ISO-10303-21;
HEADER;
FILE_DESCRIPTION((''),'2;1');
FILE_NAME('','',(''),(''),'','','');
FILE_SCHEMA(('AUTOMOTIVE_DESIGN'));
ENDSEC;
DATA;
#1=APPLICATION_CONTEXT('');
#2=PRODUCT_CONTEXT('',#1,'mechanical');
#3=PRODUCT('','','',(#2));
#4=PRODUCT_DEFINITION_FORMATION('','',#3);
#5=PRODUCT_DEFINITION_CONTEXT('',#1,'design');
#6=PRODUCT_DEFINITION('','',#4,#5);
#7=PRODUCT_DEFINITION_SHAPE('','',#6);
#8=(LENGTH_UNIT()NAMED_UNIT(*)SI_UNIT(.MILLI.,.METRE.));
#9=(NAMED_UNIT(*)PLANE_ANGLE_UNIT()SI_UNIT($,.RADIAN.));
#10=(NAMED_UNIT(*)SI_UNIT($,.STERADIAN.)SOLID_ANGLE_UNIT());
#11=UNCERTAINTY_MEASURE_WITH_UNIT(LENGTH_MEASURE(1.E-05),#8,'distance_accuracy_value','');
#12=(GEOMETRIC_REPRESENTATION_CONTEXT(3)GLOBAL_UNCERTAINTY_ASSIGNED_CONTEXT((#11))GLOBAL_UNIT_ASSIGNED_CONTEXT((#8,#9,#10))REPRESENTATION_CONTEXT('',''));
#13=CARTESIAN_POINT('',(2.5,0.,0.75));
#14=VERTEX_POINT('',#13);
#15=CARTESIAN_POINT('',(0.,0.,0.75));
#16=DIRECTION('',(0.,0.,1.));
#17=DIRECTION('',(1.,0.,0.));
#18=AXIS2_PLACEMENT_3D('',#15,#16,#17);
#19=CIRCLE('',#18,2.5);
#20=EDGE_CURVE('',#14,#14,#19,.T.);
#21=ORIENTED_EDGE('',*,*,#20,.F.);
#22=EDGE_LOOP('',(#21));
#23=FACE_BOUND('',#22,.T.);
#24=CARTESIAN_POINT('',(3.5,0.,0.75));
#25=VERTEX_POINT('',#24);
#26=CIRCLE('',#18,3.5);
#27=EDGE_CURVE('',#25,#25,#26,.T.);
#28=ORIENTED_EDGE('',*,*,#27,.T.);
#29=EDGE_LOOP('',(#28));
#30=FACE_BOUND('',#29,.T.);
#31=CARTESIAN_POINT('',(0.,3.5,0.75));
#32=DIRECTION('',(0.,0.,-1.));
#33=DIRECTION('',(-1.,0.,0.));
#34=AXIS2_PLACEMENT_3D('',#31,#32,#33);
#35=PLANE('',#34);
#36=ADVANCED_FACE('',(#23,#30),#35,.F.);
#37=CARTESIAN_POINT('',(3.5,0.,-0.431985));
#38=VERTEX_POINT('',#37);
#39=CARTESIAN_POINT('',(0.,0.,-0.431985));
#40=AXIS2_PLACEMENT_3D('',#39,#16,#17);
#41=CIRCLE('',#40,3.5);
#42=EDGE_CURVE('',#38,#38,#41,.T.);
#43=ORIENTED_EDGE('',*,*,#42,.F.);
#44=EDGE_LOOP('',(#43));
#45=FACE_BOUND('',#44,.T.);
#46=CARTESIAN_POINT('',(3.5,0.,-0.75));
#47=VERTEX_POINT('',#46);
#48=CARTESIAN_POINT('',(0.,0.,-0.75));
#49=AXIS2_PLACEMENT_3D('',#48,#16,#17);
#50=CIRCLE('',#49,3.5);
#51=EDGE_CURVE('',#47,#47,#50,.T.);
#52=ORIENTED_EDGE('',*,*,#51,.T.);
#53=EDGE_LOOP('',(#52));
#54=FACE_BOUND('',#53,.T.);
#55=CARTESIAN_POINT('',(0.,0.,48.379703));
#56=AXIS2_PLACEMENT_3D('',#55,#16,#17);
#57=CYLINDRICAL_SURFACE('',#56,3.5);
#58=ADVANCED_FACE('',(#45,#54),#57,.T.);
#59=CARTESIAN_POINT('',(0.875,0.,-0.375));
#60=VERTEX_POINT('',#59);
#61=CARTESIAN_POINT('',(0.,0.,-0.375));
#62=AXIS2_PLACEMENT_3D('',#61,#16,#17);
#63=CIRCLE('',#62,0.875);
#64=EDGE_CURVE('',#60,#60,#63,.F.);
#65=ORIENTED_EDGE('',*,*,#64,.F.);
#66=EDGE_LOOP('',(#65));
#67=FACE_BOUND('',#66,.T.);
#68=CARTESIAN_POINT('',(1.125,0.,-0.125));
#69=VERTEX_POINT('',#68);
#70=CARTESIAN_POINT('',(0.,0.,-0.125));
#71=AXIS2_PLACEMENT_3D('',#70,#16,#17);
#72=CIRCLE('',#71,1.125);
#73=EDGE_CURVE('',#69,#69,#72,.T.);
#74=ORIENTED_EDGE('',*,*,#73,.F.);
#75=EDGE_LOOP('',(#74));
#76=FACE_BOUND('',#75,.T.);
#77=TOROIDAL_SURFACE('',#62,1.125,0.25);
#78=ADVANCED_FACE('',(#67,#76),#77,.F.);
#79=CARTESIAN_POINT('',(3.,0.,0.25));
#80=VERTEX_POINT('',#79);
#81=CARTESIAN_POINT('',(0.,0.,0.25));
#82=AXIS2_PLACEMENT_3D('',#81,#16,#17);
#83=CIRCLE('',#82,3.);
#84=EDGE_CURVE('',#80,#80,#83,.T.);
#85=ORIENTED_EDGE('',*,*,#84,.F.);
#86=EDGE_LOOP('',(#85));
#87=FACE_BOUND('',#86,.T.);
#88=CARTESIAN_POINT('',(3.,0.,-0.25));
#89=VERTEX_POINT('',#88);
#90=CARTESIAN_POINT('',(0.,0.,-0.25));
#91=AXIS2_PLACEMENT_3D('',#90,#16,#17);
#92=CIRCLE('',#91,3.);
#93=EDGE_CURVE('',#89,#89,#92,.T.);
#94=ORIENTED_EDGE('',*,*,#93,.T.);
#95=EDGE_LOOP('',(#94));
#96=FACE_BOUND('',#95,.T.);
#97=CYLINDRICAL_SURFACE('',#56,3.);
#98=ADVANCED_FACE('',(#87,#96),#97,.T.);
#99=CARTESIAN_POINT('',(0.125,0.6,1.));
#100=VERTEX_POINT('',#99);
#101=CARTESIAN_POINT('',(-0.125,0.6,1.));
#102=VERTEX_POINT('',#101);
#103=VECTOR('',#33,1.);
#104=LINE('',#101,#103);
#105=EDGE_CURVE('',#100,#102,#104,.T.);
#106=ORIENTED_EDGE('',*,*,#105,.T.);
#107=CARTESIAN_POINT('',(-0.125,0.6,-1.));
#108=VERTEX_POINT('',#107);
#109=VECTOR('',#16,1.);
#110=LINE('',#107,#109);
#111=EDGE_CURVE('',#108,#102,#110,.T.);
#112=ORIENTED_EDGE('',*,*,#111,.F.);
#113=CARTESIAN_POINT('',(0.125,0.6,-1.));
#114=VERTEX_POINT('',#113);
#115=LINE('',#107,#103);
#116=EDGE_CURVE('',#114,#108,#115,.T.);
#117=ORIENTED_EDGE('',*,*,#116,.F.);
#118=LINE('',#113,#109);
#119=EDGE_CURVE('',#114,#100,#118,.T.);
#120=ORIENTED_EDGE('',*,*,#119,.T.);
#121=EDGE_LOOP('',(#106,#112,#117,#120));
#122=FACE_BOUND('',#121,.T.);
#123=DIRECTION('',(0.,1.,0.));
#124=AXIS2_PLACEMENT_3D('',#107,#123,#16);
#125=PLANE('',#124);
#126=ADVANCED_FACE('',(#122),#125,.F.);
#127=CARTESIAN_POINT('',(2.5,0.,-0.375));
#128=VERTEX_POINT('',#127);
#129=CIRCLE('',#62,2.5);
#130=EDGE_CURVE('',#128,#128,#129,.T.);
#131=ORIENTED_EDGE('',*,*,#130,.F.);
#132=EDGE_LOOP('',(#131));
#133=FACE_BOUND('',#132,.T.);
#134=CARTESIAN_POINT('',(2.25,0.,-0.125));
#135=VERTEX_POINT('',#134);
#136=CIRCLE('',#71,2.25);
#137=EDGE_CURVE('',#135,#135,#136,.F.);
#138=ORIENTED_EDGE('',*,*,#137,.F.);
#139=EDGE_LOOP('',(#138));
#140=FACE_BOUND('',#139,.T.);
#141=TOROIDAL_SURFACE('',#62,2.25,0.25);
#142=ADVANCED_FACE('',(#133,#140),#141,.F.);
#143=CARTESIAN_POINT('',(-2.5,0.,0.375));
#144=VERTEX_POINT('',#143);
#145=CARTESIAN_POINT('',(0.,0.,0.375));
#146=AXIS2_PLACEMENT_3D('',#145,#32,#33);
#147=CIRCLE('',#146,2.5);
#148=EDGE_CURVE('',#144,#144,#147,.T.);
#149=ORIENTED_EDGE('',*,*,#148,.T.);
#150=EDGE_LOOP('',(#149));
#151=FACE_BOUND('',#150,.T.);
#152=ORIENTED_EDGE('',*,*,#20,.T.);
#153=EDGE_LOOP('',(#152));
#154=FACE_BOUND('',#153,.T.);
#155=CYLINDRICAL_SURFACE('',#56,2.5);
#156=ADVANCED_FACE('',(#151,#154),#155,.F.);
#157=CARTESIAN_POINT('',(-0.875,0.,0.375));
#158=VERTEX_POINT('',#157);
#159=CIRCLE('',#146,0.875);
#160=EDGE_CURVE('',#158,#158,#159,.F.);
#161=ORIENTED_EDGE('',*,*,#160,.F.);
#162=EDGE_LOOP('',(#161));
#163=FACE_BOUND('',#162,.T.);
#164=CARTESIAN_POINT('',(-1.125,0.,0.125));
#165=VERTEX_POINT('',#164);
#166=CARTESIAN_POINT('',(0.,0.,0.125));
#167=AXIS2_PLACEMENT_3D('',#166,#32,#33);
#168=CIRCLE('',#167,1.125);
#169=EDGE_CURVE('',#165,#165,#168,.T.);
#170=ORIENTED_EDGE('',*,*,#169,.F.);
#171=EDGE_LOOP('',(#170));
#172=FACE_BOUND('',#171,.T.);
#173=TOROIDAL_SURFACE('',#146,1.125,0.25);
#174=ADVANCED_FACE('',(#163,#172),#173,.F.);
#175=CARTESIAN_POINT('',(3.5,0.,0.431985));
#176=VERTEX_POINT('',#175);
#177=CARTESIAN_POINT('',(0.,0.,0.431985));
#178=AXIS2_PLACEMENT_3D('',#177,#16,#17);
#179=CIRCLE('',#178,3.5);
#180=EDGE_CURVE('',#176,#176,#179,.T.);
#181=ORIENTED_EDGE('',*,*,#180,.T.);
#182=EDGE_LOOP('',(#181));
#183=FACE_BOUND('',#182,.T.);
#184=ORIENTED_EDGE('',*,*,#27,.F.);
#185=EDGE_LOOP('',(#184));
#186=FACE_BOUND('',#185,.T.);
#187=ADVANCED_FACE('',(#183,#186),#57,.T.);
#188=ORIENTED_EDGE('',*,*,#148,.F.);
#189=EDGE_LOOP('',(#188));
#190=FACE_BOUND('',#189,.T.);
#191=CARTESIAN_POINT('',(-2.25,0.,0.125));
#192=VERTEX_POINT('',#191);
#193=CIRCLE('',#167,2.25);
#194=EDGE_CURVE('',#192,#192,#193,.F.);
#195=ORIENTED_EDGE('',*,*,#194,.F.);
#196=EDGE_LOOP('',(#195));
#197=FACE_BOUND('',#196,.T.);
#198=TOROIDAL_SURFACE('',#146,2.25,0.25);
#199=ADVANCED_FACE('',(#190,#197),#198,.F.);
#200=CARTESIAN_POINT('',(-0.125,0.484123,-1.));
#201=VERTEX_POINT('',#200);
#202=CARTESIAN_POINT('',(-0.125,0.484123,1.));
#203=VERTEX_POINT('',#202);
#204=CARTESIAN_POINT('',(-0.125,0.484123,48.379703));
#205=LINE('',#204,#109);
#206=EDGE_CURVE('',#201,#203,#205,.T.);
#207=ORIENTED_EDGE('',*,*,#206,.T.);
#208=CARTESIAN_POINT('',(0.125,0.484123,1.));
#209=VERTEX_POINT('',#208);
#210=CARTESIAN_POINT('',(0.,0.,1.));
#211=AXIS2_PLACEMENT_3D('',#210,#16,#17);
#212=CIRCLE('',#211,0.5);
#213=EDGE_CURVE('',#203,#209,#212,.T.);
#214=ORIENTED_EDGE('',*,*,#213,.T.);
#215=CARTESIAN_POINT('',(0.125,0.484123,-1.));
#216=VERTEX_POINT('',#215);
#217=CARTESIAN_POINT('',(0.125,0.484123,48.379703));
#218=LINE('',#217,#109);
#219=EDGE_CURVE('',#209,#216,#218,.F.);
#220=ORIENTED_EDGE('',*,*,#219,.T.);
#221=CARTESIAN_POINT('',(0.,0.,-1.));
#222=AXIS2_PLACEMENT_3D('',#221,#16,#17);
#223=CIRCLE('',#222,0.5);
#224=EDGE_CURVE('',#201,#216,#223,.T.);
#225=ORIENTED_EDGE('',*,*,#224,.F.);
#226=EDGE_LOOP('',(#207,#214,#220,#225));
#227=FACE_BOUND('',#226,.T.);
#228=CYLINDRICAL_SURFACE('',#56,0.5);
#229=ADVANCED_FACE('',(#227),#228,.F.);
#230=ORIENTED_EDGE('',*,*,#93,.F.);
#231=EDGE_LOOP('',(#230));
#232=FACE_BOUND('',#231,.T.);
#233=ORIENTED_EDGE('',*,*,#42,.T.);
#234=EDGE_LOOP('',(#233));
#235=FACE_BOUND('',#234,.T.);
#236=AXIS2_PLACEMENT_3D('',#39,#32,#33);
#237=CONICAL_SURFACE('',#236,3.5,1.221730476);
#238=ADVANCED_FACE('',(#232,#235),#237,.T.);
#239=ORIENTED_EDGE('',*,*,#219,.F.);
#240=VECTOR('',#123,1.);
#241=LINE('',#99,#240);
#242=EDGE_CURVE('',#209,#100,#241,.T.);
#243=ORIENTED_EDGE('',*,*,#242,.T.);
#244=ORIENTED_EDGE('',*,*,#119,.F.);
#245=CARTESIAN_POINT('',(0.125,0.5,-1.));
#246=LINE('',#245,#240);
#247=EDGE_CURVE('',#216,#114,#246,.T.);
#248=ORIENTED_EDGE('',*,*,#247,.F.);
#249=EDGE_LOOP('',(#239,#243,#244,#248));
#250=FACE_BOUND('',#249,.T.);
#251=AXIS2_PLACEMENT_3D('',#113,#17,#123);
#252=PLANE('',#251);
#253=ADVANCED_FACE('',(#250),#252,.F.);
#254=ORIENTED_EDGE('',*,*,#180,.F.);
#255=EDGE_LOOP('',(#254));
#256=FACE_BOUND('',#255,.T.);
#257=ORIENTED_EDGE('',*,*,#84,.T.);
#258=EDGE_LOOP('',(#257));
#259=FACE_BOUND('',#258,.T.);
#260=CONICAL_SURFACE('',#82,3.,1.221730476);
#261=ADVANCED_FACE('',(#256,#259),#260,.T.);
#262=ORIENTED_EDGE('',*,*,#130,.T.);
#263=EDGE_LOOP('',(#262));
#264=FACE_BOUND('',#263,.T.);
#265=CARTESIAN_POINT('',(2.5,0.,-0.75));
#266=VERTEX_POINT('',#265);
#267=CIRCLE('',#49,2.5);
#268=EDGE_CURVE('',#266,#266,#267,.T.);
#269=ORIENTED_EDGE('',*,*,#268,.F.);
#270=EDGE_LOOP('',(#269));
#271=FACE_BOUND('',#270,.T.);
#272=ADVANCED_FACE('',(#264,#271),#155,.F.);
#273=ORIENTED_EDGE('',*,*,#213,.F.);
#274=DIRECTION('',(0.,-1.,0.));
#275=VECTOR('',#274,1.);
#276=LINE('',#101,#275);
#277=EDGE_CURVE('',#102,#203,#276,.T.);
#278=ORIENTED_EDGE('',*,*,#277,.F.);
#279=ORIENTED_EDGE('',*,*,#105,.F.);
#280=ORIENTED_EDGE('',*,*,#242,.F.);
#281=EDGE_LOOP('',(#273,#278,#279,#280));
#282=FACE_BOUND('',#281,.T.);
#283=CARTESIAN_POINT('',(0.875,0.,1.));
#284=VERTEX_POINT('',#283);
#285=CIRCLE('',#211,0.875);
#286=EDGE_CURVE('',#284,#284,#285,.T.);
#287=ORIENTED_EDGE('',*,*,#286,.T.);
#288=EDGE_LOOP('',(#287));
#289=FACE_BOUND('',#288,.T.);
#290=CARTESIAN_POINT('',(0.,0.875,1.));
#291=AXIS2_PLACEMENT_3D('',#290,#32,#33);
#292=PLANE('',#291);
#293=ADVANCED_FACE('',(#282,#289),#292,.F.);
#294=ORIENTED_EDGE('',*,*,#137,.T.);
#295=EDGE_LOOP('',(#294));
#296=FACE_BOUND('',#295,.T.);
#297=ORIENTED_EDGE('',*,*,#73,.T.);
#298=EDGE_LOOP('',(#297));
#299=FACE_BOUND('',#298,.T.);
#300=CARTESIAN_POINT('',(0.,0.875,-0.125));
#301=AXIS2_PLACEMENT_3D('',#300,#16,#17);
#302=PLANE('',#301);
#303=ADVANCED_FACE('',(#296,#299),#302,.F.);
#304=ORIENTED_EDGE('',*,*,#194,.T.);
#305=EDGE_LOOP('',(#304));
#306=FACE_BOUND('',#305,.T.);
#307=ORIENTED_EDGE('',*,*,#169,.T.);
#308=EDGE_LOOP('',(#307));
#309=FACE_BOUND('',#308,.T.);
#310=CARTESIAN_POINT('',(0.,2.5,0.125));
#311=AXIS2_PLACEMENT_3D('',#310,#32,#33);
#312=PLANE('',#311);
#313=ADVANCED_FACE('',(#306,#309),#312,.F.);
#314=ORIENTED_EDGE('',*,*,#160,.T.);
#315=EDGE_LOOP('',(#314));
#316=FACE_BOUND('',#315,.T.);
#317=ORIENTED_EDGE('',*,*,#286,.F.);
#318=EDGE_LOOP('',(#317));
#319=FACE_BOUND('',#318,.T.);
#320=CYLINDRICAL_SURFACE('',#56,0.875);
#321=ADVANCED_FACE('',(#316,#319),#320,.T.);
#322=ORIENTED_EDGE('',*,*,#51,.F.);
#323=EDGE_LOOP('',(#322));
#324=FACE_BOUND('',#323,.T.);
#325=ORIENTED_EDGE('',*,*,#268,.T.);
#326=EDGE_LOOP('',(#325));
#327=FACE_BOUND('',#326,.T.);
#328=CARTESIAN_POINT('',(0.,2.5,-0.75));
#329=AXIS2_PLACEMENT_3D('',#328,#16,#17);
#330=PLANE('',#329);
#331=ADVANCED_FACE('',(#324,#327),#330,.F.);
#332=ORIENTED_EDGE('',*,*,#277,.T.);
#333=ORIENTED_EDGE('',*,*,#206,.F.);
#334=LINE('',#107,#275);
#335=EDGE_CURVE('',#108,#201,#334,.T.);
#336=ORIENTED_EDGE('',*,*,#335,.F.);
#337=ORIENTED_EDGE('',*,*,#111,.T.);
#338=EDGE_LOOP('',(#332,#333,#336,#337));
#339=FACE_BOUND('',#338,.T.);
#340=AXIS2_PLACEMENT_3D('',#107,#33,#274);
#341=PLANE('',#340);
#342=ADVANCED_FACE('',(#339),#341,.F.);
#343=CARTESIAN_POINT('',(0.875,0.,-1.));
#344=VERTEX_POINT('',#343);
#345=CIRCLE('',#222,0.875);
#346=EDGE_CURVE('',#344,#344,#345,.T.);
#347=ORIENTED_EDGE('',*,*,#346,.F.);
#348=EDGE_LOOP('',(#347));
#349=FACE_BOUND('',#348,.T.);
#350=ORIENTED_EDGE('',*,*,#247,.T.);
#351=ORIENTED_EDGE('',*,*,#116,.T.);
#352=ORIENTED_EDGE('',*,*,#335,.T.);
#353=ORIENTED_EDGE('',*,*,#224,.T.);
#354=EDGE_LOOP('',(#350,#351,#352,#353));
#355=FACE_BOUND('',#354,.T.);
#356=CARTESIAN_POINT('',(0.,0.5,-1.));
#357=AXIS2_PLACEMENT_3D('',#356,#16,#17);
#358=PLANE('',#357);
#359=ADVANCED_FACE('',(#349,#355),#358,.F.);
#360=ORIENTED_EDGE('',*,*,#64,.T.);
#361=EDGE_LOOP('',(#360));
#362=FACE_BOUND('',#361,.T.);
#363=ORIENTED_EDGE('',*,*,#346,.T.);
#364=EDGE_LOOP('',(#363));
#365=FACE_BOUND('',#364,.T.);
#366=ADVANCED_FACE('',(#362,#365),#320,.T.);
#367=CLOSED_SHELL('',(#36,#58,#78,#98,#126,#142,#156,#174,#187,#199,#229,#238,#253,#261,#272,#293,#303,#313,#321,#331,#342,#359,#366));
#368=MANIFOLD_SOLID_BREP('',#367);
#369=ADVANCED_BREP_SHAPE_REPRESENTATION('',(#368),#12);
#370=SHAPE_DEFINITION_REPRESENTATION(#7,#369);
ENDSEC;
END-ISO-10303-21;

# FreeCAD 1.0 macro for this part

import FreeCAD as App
import Part
import Sketcher
from FreeCAD import Vector
Q = App.Units.Quantity


def edges_at(feature, points):
    """Names of the edges that pass closest to the given points."""
    edges = feature.Shape.Edges
    near = lambda p: min(range(len(edges)), key=lambda i: edges[i].distToShape(Part.Vertex(*p))[0])
    return sorted({f"Edge{near(p) + 1}" for p in points})

doc = App.newDocument("Part")
body = doc.addObject("PartDesign::Body", "Body")

# Sketch on YZ plane
sketch1 = doc.addObject("Sketcher::SketchObject", "Sketch")
body.addObject(sketch1)
sketch1.AttachmentSupport = (doc.YZ_Plane, [""])
sketch1.MapMode = "FlatFace"
sketch1.addGeometry([
    Part.LineSegment(Vector(0.5, 1, 0), Vector(0.5, -1, 0)),  # 0
    Part.LineSegment(Vector(0.5, -1, 0), Vector(0.875, -1, 0)),  # 1
    Part.LineSegment(Vector(0.875, -1, 0), Vector(0.875, -0.125, 0)),  # 2
    Part.LineSegment(Vector(0.875, -0.125, 0), Vector(2.5, -0.125, 0)),  # 3
    Part.LineSegment(Vector(2.5, -0.125, 0), Vector(2.5, -0.75, 0)),  # 4
    Part.LineSegment(Vector(2.5, -0.75, 0), Vector(3.5, -0.75, 0)),  # 5
    Part.LineSegment(Vector(3.5, -0.75, 0), Vector(3.5, -0.431985, 0)),  # 6
    Part.LineSegment(Vector(3.5, -0.431985, 0), Vector(3, -0.25, 0)),  # 7
    Part.LineSegment(Vector(3, -0.25, 0), Vector(3, 0.25, 0)),  # 8
    Part.LineSegment(Vector(3, 0.25, 0), Vector(3.5, 0.431985, 0)),  # 9
    Part.LineSegment(Vector(3.5, 0.431985, 0), Vector(3.5, 0.75, 0)),  # 10
    Part.LineSegment(Vector(3.5, 0.75, 0), Vector(2.5, 0.75, 0)),  # 11
    Part.LineSegment(Vector(2.5, 0.75, 0), Vector(2.5, 0.125, 0)),  # 12
    Part.LineSegment(Vector(2.5, 0.125, 0), Vector(0.875, 0.125, 0)),  # 13
    Part.LineSegment(Vector(0.875, 0.125, 0), Vector(0.875, 1, 0)),  # 14
    Part.LineSegment(Vector(0.875, 1, 0), Vector(0.5, 1, 0)),  # 15
], False)
sketch1.addConstraint([
    Sketcher.Constraint("Coincident", 0, 2, 1, 1),
    Sketcher.Constraint("Coincident", 1, 2, 2, 1),
    Sketcher.Constraint("Coincident", 2, 2, 3, 1),
    Sketcher.Constraint("Coincident", 3, 2, 4, 1),
    Sketcher.Constraint("Coincident", 4, 2, 5, 1),
    Sketcher.Constraint("Coincident", 5, 2, 6, 1),
    Sketcher.Constraint("Coincident", 6, 2, 7, 1),
    Sketcher.Constraint("Coincident", 7, 2, 8, 1),
    Sketcher.Constraint("Coincident", 8, 2, 9, 1),
    Sketcher.Constraint("Coincident", 9, 2, 10, 1),
    Sketcher.Constraint("Coincident", 10, 2, 11, 1),
    Sketcher.Constraint("Coincident", 11, 2, 12, 1),
    Sketcher.Constraint("Coincident", 12, 2, 13, 1),
    Sketcher.Constraint("Coincident", 13, 2, 14, 1),
    Sketcher.Constraint("Coincident", 14, 2, 15, 1),
    Sketcher.Constraint("Coincident", 15, 2, 0, 1),
    Sketcher.Constraint("Vertical", 0),
    Sketcher.Constraint("Horizontal", 1),
    Sketcher.Constraint("Vertical", 2),
    Sketcher.Constraint("Horizontal", 3),
    Sketcher.Constraint("Vertical", 4),
    Sketcher.Constraint("Horizontal", 5),
    Sketcher.Constraint("Vertical", 6),
    Sketcher.Constraint("Vertical", 8),
    Sketcher.Constraint("Vertical", 10),
    Sketcher.Constraint("Horizontal", 11),
    Sketcher.Constraint("Vertical", 12),
    Sketcher.Constraint("Horizontal", 13),
    Sketcher.Constraint("Vertical", 14),
    Sketcher.Constraint("Horizontal", 15),
    Sketcher.Constraint("Symmetric", 6, 2, 9, 2, -1),
    Sketcher.Constraint("Symmetric", 4, 2, 11, 2, -1),
    Sketcher.Constraint("Symmetric", 2, 2, 13, 2, -1),
    Sketcher.Constraint("Equal", 2, 14),
    Sketcher.Constraint("Equal", 7, 9),
    Sketcher.Constraint("DistanceX", 5, 1, 5, 2, Q("1 mm")),
    Sketcher.Constraint("DistanceY", 0, 2, 0, 1, Q("2 mm")),
    Sketcher.Constraint("Angle", 7, Q("160 deg")),
    Sketcher.Constraint("DistanceY", 8, 1, 8, 2, Q("0.5 mm")),
    Sketcher.Constraint("DistanceX", -1, 1, 7, 2, Q("3 mm")),
    Sketcher.Constraint("DistanceX", 0, 2, 3, 2, Q("2 mm")),
    Sketcher.Constraint("DistanceY", 4, 2, 8, 2, Q("1 mm")),
    Sketcher.Constraint("DistanceX", -1, 1, 0, 2, Q("0.5 mm")),
    Sketcher.Constraint("DistanceX", 1, 1, 1, 2, Q("0.375 mm")),
    Sketcher.Constraint("DistanceY", 2, 1, 2, 2, Q("0.875 mm")),
])
revolution = doc.addObject("PartDesign::Revolution", "Revolution")
body.addObject(revolution)
revolution.Profile = sketch1
revolution.ReferenceAxis = (sketch1, ["V_Axis"])
revolution.Angle = 360
doc.recompute()

fillet = doc.addObject("PartDesign::Fillet", "Fillet")
body.addObject(fillet)
fillet.Base = (revolution, edges_at(revolution, [
    (-0.875, 0, 0.125),
    (-2.5, 0, 0.125),
    (-2.5, 0, -0.125),
    (-0.875, 0, -0.125),
]))
fillet.Radius = 0.25

# Sketch on XY plane
sketch2 = doc.addObject("Sketcher::SketchObject", "Sketch001")
body.addObject(sketch2)
sketch2.AttachmentSupport = (doc.XY_Plane, [""])
sketch2.MapMode = "FlatFace"
sketch2.AttachmentOffset = App.Placement(Vector(0, 0, 1), App.Rotation())
sketch2.addGeometry([
    Part.LineSegment(Vector(-0.125, 0.6, 0), Vector(-0.125, 0.35, 0)),
    Part.LineSegment(Vector(-0.125, 0.35, 0), Vector(0.125, 0.35, 0)),
    Part.LineSegment(Vector(0.125, 0.35, 0), Vector(0.125, 0.6, 0)),
    Part.LineSegment(Vector(0.125, 0.6, 0), Vector(-0.125, 0.6, 0)),
], False)
sketch2.addConstraint([
    Sketcher.Constraint("Coincident", 0, 2, 1, 1),
    Sketcher.Constraint("Coincident", 1, 2, 2, 1),
    Sketcher.Constraint("Coincident", 2, 2, 3, 1),
    Sketcher.Constraint("Coincident", 3, 2, 0, 1),
    Sketcher.Constraint("Vertical", 0),
    Sketcher.Constraint("Horizontal", 1),
    Sketcher.Constraint("Vertical", 2),
    Sketcher.Constraint("Horizontal", 3),
    Sketcher.Constraint("Equal", 3, 0),
    Sketcher.Constraint("DistanceX", 1, 1, 1, 2, Q("0.25 mm")),
    Sketcher.Constraint("DistanceY", -1, 1, 2, 2, Q("0.6 mm")),
    Sketcher.Constraint("DistanceX", 0, 2, -1, 1, Q("0.125 mm")),
])
pocket1 = doc.addObject("PartDesign::Pocket", "Pocket")
body.addObject(pocket1)
pocket1.Profile = sketch2
pocket1.Type = "ThroughAll"

doc.recompute()
